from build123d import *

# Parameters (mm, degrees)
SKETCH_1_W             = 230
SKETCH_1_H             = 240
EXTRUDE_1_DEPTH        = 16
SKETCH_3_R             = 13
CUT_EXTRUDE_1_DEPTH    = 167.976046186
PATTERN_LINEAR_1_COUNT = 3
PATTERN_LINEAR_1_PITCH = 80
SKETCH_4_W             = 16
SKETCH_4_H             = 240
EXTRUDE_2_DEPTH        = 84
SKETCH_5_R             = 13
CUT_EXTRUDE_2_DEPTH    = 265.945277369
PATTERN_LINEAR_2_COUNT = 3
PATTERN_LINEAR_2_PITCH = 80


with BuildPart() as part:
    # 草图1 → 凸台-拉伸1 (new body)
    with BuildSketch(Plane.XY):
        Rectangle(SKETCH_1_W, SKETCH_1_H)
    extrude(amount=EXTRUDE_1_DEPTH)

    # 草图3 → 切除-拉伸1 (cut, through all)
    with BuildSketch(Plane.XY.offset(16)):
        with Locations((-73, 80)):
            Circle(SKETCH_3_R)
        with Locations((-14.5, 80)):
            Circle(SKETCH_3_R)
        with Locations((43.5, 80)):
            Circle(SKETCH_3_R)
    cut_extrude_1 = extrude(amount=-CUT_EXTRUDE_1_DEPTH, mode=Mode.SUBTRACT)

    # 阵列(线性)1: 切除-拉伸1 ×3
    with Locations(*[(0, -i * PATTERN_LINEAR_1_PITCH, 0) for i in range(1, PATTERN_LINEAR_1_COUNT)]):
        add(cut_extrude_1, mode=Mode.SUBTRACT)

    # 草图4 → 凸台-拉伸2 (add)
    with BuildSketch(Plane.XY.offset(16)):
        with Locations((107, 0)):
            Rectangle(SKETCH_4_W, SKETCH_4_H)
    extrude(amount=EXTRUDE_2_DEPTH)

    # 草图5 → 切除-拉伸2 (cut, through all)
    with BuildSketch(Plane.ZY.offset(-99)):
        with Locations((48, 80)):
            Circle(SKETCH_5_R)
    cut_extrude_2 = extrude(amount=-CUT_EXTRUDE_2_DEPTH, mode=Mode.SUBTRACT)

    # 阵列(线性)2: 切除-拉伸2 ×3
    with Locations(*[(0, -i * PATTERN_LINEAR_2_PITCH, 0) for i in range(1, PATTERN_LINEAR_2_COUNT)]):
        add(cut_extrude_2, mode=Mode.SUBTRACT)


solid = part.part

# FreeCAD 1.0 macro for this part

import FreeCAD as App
import Part
import Sketcher

V = App.Vector

doc = App.newDocument("Part")
body = doc.addObject("PartDesign::Body", "Body")

# Sketch on XY plane
sketch1 = body.newObject("Sketcher::SketchObject", "Sketch")
sketch1.AttachmentSupport = (doc.getObject("XY_Plane"), [""])
sketch1.MapMode = "FlatFace"
sketch1.addGeometry(Part.LineSegment(V(-115, 120, 0), V(-115, -120, 0)), False)
sketch1.addGeometry(Part.LineSegment(V(-115, -120, 0), V(115, -120, 0)), False)
sketch1.addGeometry(Part.LineSegment(V(115, -120, 0), V(115, 120, 0)), False)
sketch1.addGeometry(Part.LineSegment(V(115, 120, 0), V(-115, 120, 0)), False)
sketch1.addConstraint(Sketcher.Constraint("Coincident", 0, 2, 1, 1))
sketch1.addConstraint(Sketcher.Constraint("Coincident", 1, 2, 2, 1))
sketch1.addConstraint(Sketcher.Constraint("Coincident", 2, 2, 3, 1))
sketch1.addConstraint(Sketcher.Constraint("Coincident", 3, 2, 0, 1))
sketch1.addConstraint(Sketcher.Constraint("Vertical", 0))
sketch1.addConstraint(Sketcher.Constraint("Horizontal", 1))
sketch1.addConstraint(Sketcher.Constraint("Vertical", 2))
sketch1.addConstraint(Sketcher.Constraint("Horizontal", 3))
sketch1.addConstraint(Sketcher.Constraint("Symmetric", 0, 2, 2, 2, -1, 1))
sketch1.addConstraint(Sketcher.Constraint("DistanceX", 1, 1, 1, 2, 230.0))
sketch1.addConstraint(Sketcher.Constraint("DistanceY", 0, 2, 0, 1, 240.0))
pad1 = body.newObject("PartDesign::Pad", "Pad")
pad1.Profile = sketch1
pad1.Length = 16

# Sketch on XY plane
sketch2 = body.newObject("Sketcher::SketchObject", "Sketch001")
sketch2.AttachmentSupport = (doc.getObject("XY_Plane"), [""])
sketch2.MapMode = "FlatFace"
sketch2.AttachmentOffset = App.Placement(V(0, 0, 16), App.Rotation())
sketch2.addGeometry(Part.Circle(V(-73, 80, 0), V(0, 0, 1), 13), False)
sketch2.addGeometry(Part.Circle(V(-14, 80, 0), V(0, 0, 1), 13), False)
sketch2.addGeometry(Part.Circle(V(44, 80, 0), V(0, 0, 1), 13), False)
sketch2.addConstraint(Sketcher.Constraint("Equal", 0, 1))
sketch2.addConstraint(Sketcher.Constraint("Equal", 1, 2))
sketch2.addConstraint(Sketcher.Constraint("Horizontal", 0, 3, 1, 3))
sketch2.addConstraint(Sketcher.Constraint("Horizontal", 1, 3, 2, 3))
sketch2.addConstraint(Sketcher.Constraint("Diameter", 0, 26.0))
sketch2.addConstraint(Sketcher.Constraint("DistanceX", 0, 3, -1, 1, 73.0))
sketch2.addConstraint(Sketcher.Constraint("DistanceY", -1, 1, 0, 3, 80.0))
sketch2.addConstraint(Sketcher.Constraint("DistanceX", 1, 3, 2, 3, 58.0))
sketch2.addConstraint(Sketcher.Constraint("DistanceX", 1, 3, -1, 1, 14.5))
pocket1 = body.newObject("PartDesign::Pocket", "Pocket")
pocket1.Profile = sketch2
pocket1.Type = "ThroughAll"
doc.recompute()

linearpattern = body.newObject("PartDesign::LinearPattern", "LinearPattern")
linearpattern.Originals = [pocket1]
linearpattern.Direction = (doc.getObject("Y_Axis"), [""])
linearpattern.Mode = "offset"
linearpattern.Offset = 80
linearpattern.Occurrences = 3
linearpattern.Reversed = True
body.Tip = linearpattern

# Sketch on XY plane
sketch3 = body.newObject("Sketcher::SketchObject", "Sketch002")
sketch3.AttachmentSupport = (doc.getObject("XY_Plane"), [""])
sketch3.MapMode = "FlatFace"
sketch3.AttachmentOffset = App.Placement(V(0, 0, 16), App.Rotation())
sketch3.addGeometry(Part.LineSegment(V(99, 120, 0), V(99, -120, 0)), False)
sketch3.addGeometry(Part.LineSegment(V(99, -120, 0), V(115, -120, 0)), False)
sketch3.addGeometry(Part.LineSegment(V(115, -120, 0), V(115, 120, 0)), False)
sketch3.addGeometry(Part.LineSegment(V(115, 120, 0), V(99, 120, 0)), False)
sketch3.addConstraint(Sketcher.Constraint("Coincident", 0, 2, 1, 1))
sketch3.addConstraint(Sketcher.Constraint("Coincident", 1, 2, 2, 1))
sketch3.addConstraint(Sketcher.Constraint("Coincident", 2, 2, 3, 1))
sketch3.addConstraint(Sketcher.Constraint("Coincident", 3, 2, 0, 1))
sketch3.addConstraint(Sketcher.Constraint("Vertical", 0))
sketch3.addConstraint(Sketcher.Constraint("Horizontal", 1))
sketch3.addConstraint(Sketcher.Constraint("Vertical", 2))
sketch3.addConstraint(Sketcher.Constraint("Horizontal", 3))
sketch3.addConstraint(Sketcher.Constraint("DistanceX", 1, 1, 1, 2, 16.0))
sketch3.addConstraint(Sketcher.Constraint("DistanceY", 0, 2, 0, 1, 240.0))
sketch3.addConstraint(Sketcher.Constraint("DistanceX", -1, 1, 0, 2, 99.0))
sketch3.addConstraint(Sketcher.Constraint("DistanceY", 0, 2, -1, 1, 120.0))
pad2 = body.newObject("PartDesign::Pad", "Pad001")
pad2.Profile = sketch3
pad2.Length = 84

# Sketch on YZ plane
sketch4 = body.newObject("Sketcher::SketchObject", "Sketch003")
sketch4.AttachmentSupport = (doc.getObject("YZ_Plane"), [""])
sketch4.MapMode = "FlatFace"
sketch4.AttachmentOffset = App.Placement(V(0, 0, 99), App.Rotation())
sketch4.addGeometry(Part.Circle(V(80, 48, 0), V(0, 0, 1), 13), False)
sketch4.addConstraint(Sketcher.Constraint("Diameter", 0, 26.0))
sketch4.addConstraint(Sketcher.Constraint("DistanceX", -1, 1, 0, 3, 80.0))
sketch4.addConstraint(Sketcher.Constraint("DistanceY", -1, 1, 0, 3, 48.0))
pocket2 = body.newObject("PartDesign::Pocket", "Pocket001")
pocket2.Profile = sketch4
pocket2.Type = "ThroughAll"
pocket2.Reversed = True
doc.recompute()

linearpattern2 = body.newObject("PartDesign::LinearPattern", "LinearPattern001")
linearpattern2.Originals = [pocket2]
linearpattern2.Direction = (doc.getObject("Y_Axis"), [""])
linearpattern2.Mode = "offset"
linearpattern2.Offset = 80
linearpattern2.Occurrences = 3
linearpattern2.Reversed = True
body.Tip = linearpattern2

doc.recompute()
